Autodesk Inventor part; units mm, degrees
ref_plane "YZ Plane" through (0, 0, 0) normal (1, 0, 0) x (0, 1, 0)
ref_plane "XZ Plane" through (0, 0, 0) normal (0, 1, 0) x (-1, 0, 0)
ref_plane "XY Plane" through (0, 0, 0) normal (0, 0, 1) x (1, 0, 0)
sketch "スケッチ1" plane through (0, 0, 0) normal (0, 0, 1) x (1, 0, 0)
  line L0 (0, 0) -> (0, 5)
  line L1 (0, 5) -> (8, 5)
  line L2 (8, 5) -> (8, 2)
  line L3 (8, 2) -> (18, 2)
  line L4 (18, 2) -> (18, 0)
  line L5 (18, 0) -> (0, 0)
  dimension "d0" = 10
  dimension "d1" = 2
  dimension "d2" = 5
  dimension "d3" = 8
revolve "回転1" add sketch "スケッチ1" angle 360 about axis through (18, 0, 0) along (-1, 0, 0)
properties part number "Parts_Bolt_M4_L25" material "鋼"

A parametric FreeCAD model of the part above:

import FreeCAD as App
import Part
import Sketcher

V = App.Vector
Q = App.Units.Quantity

doc = App.newDocument("Part")
body = doc.addObject("PartDesign::Body", "Body")

sketch1 = doc.addObject("Sketcher::SketchObject", "Sketch")
body.addObject(sketch1)
sketch1.AttachmentSupport = (doc.XY_Plane, [""])
sketch1.MapMode = "FlatFace"
sketch1.addGeometry([
    Part.LineSegment(V(0, 5, 0), V(0, 0, 0)),
    Part.LineSegment(V(0, 0, 0), V(18, 0, 0)),
    Part.LineSegment(V(18, 0, 0), V(18, 2, 0)),
    Part.LineSegment(V(18, 2, 0), V(8, 2, 0)),
    Part.LineSegment(V(8, 2, 0), V(8, 5, 0)),
    Part.LineSegment(V(8, 5, 0), V(0, 5, 0)),
], False)
sketch1.addConstraint([
    Sketcher.Constraint("Coincident", 0, 2, 1, 1),
    Sketcher.Constraint("Coincident", 1, 2, 2, 1),
    Sketcher.Constraint("Coincident", 2, 2, 3, 1),
    Sketcher.Constraint("Coincident", 3, 2, 4, 1),
    Sketcher.Constraint("Coincident", 4, 2, 5, 1),
    Sketcher.Constraint("Coincident", 5, 2, 0, 1),
    Sketcher.Constraint("Vertical", 0),
    Sketcher.Constraint("Horizontal", 1),
    Sketcher.Constraint("Vertical", 2),
    Sketcher.Constraint("Horizontal", 3),
    Sketcher.Constraint("Vertical", 4),
    Sketcher.Constraint("Horizontal", 5),
    Sketcher.Constraint("Coincident", 0, 2, -1, 1),
    Sketcher.Constraint("DistanceX", 3, 2, 3, 1, Q("10 mm")),
    Sketcher.Constraint("DistanceX", 5, 2, 5, 1, Q("8 mm")),
    Sketcher.Constraint("DistanceY", 0, 2, 0, 1, Q("5 mm")),
    Sketcher.Constraint("DistanceY", 2, 1, 2, 2, Q("2 mm")),
])
revolution = doc.addObject("PartDesign::Revolution", "Revolution")
body.addObject(revolution)
revolution.Profile = sketch1
revolution.ReferenceAxis = (sketch1, ["H_Axis"])
revolution.Angle = 360

doc.recompute()
